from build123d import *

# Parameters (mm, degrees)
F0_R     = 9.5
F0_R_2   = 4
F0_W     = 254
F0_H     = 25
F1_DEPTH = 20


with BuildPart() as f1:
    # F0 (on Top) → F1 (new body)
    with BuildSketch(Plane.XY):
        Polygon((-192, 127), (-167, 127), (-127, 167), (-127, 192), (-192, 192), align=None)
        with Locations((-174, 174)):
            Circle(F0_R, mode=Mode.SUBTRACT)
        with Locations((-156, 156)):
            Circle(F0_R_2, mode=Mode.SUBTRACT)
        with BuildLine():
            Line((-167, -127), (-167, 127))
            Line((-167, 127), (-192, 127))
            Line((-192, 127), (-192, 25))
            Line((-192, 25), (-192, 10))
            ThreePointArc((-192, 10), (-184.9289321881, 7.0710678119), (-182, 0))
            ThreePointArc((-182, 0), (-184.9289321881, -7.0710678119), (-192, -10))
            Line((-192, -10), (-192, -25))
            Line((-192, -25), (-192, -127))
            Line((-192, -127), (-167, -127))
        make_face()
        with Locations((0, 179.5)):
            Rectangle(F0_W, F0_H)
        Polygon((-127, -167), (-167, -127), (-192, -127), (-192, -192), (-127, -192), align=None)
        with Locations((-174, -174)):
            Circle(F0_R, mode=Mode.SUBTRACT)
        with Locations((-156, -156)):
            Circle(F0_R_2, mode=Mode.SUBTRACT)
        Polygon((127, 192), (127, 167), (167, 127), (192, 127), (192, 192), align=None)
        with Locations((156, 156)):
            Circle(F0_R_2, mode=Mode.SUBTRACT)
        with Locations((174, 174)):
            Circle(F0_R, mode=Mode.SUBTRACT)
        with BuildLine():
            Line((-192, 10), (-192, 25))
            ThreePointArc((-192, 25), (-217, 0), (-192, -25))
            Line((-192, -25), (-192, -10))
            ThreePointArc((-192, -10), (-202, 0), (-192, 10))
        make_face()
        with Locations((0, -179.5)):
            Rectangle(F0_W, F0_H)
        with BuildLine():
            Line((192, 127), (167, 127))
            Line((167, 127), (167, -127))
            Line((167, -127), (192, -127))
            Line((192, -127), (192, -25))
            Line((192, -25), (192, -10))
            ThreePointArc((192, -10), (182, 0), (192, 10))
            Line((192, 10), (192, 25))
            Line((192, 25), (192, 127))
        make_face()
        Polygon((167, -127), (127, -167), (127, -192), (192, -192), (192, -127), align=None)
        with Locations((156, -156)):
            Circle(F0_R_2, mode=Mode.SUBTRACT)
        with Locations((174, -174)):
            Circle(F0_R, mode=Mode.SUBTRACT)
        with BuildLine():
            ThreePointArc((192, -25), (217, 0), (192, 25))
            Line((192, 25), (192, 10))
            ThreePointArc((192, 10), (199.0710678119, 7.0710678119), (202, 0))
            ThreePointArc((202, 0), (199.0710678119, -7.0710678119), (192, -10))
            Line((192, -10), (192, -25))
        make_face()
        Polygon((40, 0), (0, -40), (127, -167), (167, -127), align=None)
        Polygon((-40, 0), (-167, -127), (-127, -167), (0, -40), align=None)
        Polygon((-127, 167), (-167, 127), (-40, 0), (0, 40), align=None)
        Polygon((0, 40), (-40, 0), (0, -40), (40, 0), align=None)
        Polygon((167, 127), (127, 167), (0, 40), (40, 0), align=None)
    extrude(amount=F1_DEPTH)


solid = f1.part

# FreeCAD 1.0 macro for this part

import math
import FreeCAD as App
import Part
import Sketcher
from FreeCAD import Vector

doc = App.newDocument("Part")
body = doc.addObject("PartDesign::Body", "Body")

# Sketch on XY plane
sketch1 = body.newObject("Sketcher::SketchObject", "Sketch")
sketch1.AttachmentSupport = (doc.getObject("XY_Plane"), [""])
sketch1.MapMode = "FlatFace"
sketch1.addGeometry(Part.LineSegment(Vector(-192, 192, 0), Vector(-192, 25, 0)), False)
sketch1.addGeometry(Part.ArcOfCircle(Part.Circle(Vector(-192, 0, 0), Vector(0, 0, 1), 25), math.radians(90), math.radians(270)), False)
sketch1.addGeometry(Part.LineSegment(Vector(-192, -25, 0), Vector(-192, -192, 0)), False)
sketch1.addGeometry(Part.LineSegment(Vector(-192, -192, 0), Vector(192, -192, 0)), False)
sketch1.addGeometry(Part.LineSegment(Vector(192, -192, 0), Vector(192, -25, 0)), False)
sketch1.addGeometry(Part.ArcOfCircle(Part.Circle(Vector(192, 0, 0), Vector(0, 0, 1), 25), math.radians(-90), math.radians(90)), False)
sketch1.addGeometry(Part.LineSegment(Vector(192, 25, 0), Vector(192, 192, 0)), False)
sketch1.addGeometry(Part.LineSegment(Vector(192, 192, 0), Vector(-192, 192, 0)), False)
sketch1.addGeometry(Part.Circle(Vector(-174, -174, 0), Vector(0, 0, 1), 9.5), False)
sketch1.addGeometry(Part.Circle(Vector(-156, -156, 0), Vector(0, 0, 1), 4), False)
sketch1.addGeometry(Part.LineSegment(Vector(-127, -167, 0), Vector(0, -40, 0)), False)
sketch1.addGeometry(Part.LineSegment(Vector(0, -40, 0), Vector(127, -167, 0)), False)
sketch1.addGeometry(Part.LineSegment(Vector(127, -167, 0), Vector(-127, -167, 0)), False)
sketch1.addGeometry(Part.Circle(Vector(174, -174, 0), Vector(0, 0, 1), 9.5), False)
sketch1.addGeometry(Part.Circle(Vector(156, -156, 0), Vector(0, 0, 1), 4), False)
sketch1.addGeometry(Part.ArcOfCircle(Part.Circle(Vector(-192, 0, 0), Vector(0, 0, 1), 10), math.radians(0), math.radians(90)), False)
sketch1.addGeometry(Part.ArcOfCircle(Part.Circle(Vector(-192, 0, 0), Vector(0, 0, 1), 10), math.radians(-90), math.radians(0)), False)
sketch1.addGeometry(Part.ArcOfCircle(Part.Circle(Vector(-192, 0, 0), Vector(0, 0, 1), 10), math.radians(90), math.radians(270)), False)
sketch1.addGeometry(Part.LineSegment(Vector(-167, 127, 0), Vector(-40, 0, 0)), False)
sketch1.addGeometry(Part.LineSegment(Vector(-40, 0, 0), Vector(-167, -127, 0)), False)
sketch1.addGeometry(Part.LineSegment(Vector(-167, -127, 0), Vector(-167, 127, 0)), False)
sketch1.addGeometry(Part.Circle(Vector(-156, 156, 0), Vector(0, 0, 1), 4), False)
sketch1.addGeometry(Part.Circle(Vector(-174, 174, 0), Vector(0, 0, 1), 9.5), False)
sketch1.addGeometry(Part.LineSegment(Vector(167, -127, 0), Vector(40, 0, 0)), False)
sketch1.addGeometry(Part.LineSegment(Vector(40, 0, 0), Vector(167, 127, 0)), False)
sketch1.addGeometry(Part.LineSegment(Vector(167, 127, 0), Vector(167, -127, 0)), False)
sketch1.addGeometry(Part.LineSegment(Vector(0, 40, 0), Vector(-127, 167, 0)), False)
sketch1.addGeometry(Part.LineSegment(Vector(-127, 167, 0), Vector(127, 167, 0)), False)
sketch1.addGeometry(Part.LineSegment(Vector(127, 167, 0), Vector(0, 40, 0)), False)
sketch1.addGeometry(Part.ArcOfCircle(Part.Circle(Vector(192, 0, 0), Vector(0, 0, 1), 10), math.radians(90), math.radians(270)), False)
sketch1.addGeometry(Part.ArcOfCircle(Part.Circle(Vector(192, 0, 0), Vector(0, 0, 1), 10), math.radians(0), math.radians(90)), False)
sketch1.addGeometry(Part.ArcOfCircle(Part.Circle(Vector(192, 0, 0), Vector(0, 0, 1), 10), math.radians(-90), math.radians(0)), False)
sketch1.addGeometry(Part.Circle(Vector(156, 156, 0), Vector(0, 0, 1), 4), False)
sketch1.addGeometry(Part.Circle(Vector(174, 174, 0), Vector(0, 0, 1), 9.5), False)
sketch1.addConstraint(Sketcher.Constraint("Coincident", 0, 2, 1, 1))
sketch1.addConstraint(Sketcher.Constraint("Coincident", 1, 2, 2, 1))
sketch1.addConstraint(Sketcher.Constraint("Coincident", 2, 2, 3, 1))
sketch1.addConstraint(Sketcher.Constraint("Coincident", 3, 2, 4, 1))
sketch1.addConstraint(Sketcher.Constraint("Coincident", 4, 2, 5, 1))
sketch1.addConstraint(Sketcher.Constraint("Coincident", 5, 2, 6, 1))
sketch1.addConstraint(Sketcher.Constraint("Coincident", 6, 2, 7, 1))
sketch1.addConstraint(Sketcher.Constraint("Coincident", 7, 2, 0, 1))
sketch1.addConstraint(Sketcher.Constraint("Coincident", 10, 2, 11, 1))
sketch1.addConstraint(Sketcher.Constraint("Coincident", 11, 2, 12, 1))
sketch1.addConstraint(Sketcher.Constraint("Coincident", 12, 2, 10, 1))
sketch1.addConstraint(Sketcher.Constraint("Tangent", 15, 1, 16, 2))
sketch1.addConstraint(Sketcher.Constraint("Tangent", 16, 1, 17, 2))
sketch1.addConstraint(Sketcher.Constraint("Tangent", 17, 1, 15, 2))
sketch1.addConstraint(Sketcher.Constraint("Coincident", 18, 2, 19, 1))
sketch1.addConstraint(Sketcher.Constraint("Coincident", 19, 2, 20, 1))
sketch1.addConstraint(Sketcher.Constraint("Coincident", 20, 2, 18, 1))
sketch1.addConstraint(Sketcher.Constraint("Coincident", 23, 2, 24, 1))
sketch1.addConstraint(Sketcher.Constraint("Coincident", 24, 2, 25, 1))
sketch1.addConstraint(Sketcher.Constraint("Coincident", 25, 2, 23, 1))
sketch1.addConstraint(Sketcher.Constraint("Coincident", 26, 2, 27, 1))
sketch1.addConstraint(Sketcher.Constraint("Coincident", 27, 2, 28, 1))
sketch1.addConstraint(Sketcher.Constraint("Coincident", 28, 2, 26, 1))
sketch1.addConstraint(Sketcher.Constraint("Tangent", 29, 1, 30, 2))
sketch1.addConstraint(Sketcher.Constraint("Tangent", 30, 1, 31, 2))
sketch1.addConstraint(Sketcher.Constraint("Tangent", 31, 1, 29, 2))
sketch1.addConstraint(Sketcher.Constraint("Vertical", 0))
sketch1.addConstraint(Sketcher.Constraint("Vertical", 2))
sketch1.addConstraint(Sketcher.Constraint("Horizontal", 3))
sketch1.addConstraint(Sketcher.Constraint("Vertical", 4))
sketch1.addConstraint(Sketcher.Constraint("Vertical", 6))
sketch1.addConstraint(Sketcher.Constraint("Horizontal", 7))
sketch1.addConstraint(Sketcher.Constraint("Horizontal", 12))
sketch1.addConstraint(Sketcher.Constraint("Vertical", 20))
sketch1.addConstraint(Sketcher.Constraint("Vertical", 25))
sketch1.addConstraint(Sketcher.Constraint("Horizontal", 27))
sketch1.addConstraint(Sketcher.Constraint("Coincident", 15, 3, 1, 3))
sketch1.addConstraint(Sketcher.Constraint("Coincident", 29, 3, 5, 3))
sketch1.addConstraint(Sketcher.Constraint("Equal", 1, 5))
sketch1.addConstraint(Sketcher.Constraint("Equal", 8, 13))
sketch1.addConstraint(Sketcher.Constraint("Equal", 9, 14))
sketch1.addConstraint(Sketcher.Constraint("Equal", 14, 21))
sketch1.addConstraint(Sketcher.Constraint("Equal", 13, 22))
sketch1.addConstraint(Sketcher.Constraint("Equal", 17, 29))
sketch1.addConstraint(Sketcher.Constraint("Equal", 21, 32))
sketch1.addConstraint(Sketcher.Constraint("Equal", 22, 33))
sketch1.addConstraint(Sketcher.Constraint("Symmetric", 1, 3, 5, 3, -1, 1))
sketch1.addConstraint(Sketcher.Constraint("Symmetric", 14, 3, 21, 3, -1, 1))
sketch1.addConstraint(Sketcher.Constraint("Symmetric", 13, 3, 22, 3, -1, 1))
sketch1.addConstraint(Sketcher.Constraint("Symmetric", 9, 3, 32, 3, -1, 1))
sketch1.addConstraint(Sketcher.Constraint("Symmetric", 8, 3, 33, 3, -1, 1))
sketch1.addConstraint(Sketcher.Constraint("Symmetric", 2, 2, 6, 2, -1, 1))
sketch1.addConstraint(Sketcher.Constraint("Symmetric", 18, 2, 23, 2, -1, 1))
sketch1.addConstraint(Sketcher.Constraint("Symmetric", 19, 2, 24, 2, -1, 1))
sketch1.addConstraint(Sketcher.Constraint("Symmetric", 11, 2, 26, 2, -1, 1))
sketch1.addConstraint(Sketcher.Constraint("Symmetric", 10, 2, 28, 2, -1, 1))
sketch1.addConstraint(Sketcher.Constraint("Symmetric", 8, 3, 13, 3, -2))
sketch1.addConstraint(Sketcher.Constraint("Symmetric", 9, 3, 14, 3, -2))
sketch1.addConstraint(Sketcher.Constraint("Symmetric", 1, 2, 4, 2, -2))
sketch1.addConstraint(Sketcher.Constraint("PointOnObject", 10, 2, -2))
sketch1.addConstraint(Sketcher.Constraint("PointOnObject", 15, 1, -1))
sketch1.addConstraint(Sketcher.Constraint("PointOnObject", 18, 2, -1))
sketch1.addConstraint(Sketcher.Constraint("PointOnObject", 30, 1, -1))
sketch1.addConstraint(Sketcher.Constraint("Perpendicular", 10, 11))
sketch1.addConstraint(Sketcher.Constraint("Parallel", 11, 18))
sketch1.addConstraint(Sketcher.Constraint("Perpendicular", 18, 19))
sketch1.addConstraint(Sketcher.Constraint("Perpendicular", 19, 23))
sketch1.addConstraint(Sketcher.Constraint("Perpendicular", 26, 28))
sketch1.addConstraint(Sketcher.Constraint("Horizontal", 20, 2, 24, 2))
sketch1.addConstraint(Sketcher.Constraint("Vertical", 17, 3, 0, 2))
sketch1.addConstraint(Sketcher.Constraint("Vertical", 0, 2, 1, 2))
sketch1.addConstraint(Sketcher.Constraint("Vertical", 7, 2, 16, 1))
sketch1.addConstraint(Sketcher.Constraint("Vertical", 16, 1, 17, 1))
sketch1.addConstraint(Sketcher.Constraint("Vertical", 6, 2, 29, 1))
sketch1.addConstraint(Sketcher.Constraint("Vertical", 29, 1, 31, 1))
sketch1.addConstraint(Sketcher.Constraint("Equal", 27, 20))
sketch1.addConstraint(Sketcher.Constraint("Diameter", 8, 19.0))
sketch1.addConstraint(Sketcher.Constraint("Diameter", 9, 8.0))
sketch1.addConstraint(Sketcher.Constraint("Radius", 1, 25.0))
sketch1.addConstraint(Sketcher.Constraint("Radius", 15, 10.0))
sketch1.addConstraint(Sketcher.Constraint("DistanceX", 3, 1, 3, 2, 384.0))
sketch1.addConstraint(Sketcher.Constraint("DistanceX", 12, 2, 12, 1, 254.0))
sketch1.addConstraint(Sketcher.Constraint("DistanceY", 0, 2, 0, 1, 167.0))
sketch1.addConstraint(Sketcher.Constraint("DistanceX", 8, 3, -1, 1, 174.0))
sketch1.addConstraint(Sketcher.Constraint("DistanceY", 8, 3, -1, 1, 174.0))
sketch1.addConstraint(Sketcher.Constraint("DistanceX", 9, 3, -1, 1, 156.0))
sketch1.addConstraint(Sketcher.Constraint("DistanceY", 9, 3, -1, 1, 156.0))
sketch1.addConstraint(Sketcher.Constraint("DistanceY", 10, 2, -1, 1, 40.0))
sketch1.addConstraint(Sketcher.Constraint("DistanceX", 18, 2, -1, 1, 40.0))
pad1 = body.newObject("PartDesign::Pad", "Pad")
pad1.Profile = sketch1
pad1.Length = 20

doc.recompute()
